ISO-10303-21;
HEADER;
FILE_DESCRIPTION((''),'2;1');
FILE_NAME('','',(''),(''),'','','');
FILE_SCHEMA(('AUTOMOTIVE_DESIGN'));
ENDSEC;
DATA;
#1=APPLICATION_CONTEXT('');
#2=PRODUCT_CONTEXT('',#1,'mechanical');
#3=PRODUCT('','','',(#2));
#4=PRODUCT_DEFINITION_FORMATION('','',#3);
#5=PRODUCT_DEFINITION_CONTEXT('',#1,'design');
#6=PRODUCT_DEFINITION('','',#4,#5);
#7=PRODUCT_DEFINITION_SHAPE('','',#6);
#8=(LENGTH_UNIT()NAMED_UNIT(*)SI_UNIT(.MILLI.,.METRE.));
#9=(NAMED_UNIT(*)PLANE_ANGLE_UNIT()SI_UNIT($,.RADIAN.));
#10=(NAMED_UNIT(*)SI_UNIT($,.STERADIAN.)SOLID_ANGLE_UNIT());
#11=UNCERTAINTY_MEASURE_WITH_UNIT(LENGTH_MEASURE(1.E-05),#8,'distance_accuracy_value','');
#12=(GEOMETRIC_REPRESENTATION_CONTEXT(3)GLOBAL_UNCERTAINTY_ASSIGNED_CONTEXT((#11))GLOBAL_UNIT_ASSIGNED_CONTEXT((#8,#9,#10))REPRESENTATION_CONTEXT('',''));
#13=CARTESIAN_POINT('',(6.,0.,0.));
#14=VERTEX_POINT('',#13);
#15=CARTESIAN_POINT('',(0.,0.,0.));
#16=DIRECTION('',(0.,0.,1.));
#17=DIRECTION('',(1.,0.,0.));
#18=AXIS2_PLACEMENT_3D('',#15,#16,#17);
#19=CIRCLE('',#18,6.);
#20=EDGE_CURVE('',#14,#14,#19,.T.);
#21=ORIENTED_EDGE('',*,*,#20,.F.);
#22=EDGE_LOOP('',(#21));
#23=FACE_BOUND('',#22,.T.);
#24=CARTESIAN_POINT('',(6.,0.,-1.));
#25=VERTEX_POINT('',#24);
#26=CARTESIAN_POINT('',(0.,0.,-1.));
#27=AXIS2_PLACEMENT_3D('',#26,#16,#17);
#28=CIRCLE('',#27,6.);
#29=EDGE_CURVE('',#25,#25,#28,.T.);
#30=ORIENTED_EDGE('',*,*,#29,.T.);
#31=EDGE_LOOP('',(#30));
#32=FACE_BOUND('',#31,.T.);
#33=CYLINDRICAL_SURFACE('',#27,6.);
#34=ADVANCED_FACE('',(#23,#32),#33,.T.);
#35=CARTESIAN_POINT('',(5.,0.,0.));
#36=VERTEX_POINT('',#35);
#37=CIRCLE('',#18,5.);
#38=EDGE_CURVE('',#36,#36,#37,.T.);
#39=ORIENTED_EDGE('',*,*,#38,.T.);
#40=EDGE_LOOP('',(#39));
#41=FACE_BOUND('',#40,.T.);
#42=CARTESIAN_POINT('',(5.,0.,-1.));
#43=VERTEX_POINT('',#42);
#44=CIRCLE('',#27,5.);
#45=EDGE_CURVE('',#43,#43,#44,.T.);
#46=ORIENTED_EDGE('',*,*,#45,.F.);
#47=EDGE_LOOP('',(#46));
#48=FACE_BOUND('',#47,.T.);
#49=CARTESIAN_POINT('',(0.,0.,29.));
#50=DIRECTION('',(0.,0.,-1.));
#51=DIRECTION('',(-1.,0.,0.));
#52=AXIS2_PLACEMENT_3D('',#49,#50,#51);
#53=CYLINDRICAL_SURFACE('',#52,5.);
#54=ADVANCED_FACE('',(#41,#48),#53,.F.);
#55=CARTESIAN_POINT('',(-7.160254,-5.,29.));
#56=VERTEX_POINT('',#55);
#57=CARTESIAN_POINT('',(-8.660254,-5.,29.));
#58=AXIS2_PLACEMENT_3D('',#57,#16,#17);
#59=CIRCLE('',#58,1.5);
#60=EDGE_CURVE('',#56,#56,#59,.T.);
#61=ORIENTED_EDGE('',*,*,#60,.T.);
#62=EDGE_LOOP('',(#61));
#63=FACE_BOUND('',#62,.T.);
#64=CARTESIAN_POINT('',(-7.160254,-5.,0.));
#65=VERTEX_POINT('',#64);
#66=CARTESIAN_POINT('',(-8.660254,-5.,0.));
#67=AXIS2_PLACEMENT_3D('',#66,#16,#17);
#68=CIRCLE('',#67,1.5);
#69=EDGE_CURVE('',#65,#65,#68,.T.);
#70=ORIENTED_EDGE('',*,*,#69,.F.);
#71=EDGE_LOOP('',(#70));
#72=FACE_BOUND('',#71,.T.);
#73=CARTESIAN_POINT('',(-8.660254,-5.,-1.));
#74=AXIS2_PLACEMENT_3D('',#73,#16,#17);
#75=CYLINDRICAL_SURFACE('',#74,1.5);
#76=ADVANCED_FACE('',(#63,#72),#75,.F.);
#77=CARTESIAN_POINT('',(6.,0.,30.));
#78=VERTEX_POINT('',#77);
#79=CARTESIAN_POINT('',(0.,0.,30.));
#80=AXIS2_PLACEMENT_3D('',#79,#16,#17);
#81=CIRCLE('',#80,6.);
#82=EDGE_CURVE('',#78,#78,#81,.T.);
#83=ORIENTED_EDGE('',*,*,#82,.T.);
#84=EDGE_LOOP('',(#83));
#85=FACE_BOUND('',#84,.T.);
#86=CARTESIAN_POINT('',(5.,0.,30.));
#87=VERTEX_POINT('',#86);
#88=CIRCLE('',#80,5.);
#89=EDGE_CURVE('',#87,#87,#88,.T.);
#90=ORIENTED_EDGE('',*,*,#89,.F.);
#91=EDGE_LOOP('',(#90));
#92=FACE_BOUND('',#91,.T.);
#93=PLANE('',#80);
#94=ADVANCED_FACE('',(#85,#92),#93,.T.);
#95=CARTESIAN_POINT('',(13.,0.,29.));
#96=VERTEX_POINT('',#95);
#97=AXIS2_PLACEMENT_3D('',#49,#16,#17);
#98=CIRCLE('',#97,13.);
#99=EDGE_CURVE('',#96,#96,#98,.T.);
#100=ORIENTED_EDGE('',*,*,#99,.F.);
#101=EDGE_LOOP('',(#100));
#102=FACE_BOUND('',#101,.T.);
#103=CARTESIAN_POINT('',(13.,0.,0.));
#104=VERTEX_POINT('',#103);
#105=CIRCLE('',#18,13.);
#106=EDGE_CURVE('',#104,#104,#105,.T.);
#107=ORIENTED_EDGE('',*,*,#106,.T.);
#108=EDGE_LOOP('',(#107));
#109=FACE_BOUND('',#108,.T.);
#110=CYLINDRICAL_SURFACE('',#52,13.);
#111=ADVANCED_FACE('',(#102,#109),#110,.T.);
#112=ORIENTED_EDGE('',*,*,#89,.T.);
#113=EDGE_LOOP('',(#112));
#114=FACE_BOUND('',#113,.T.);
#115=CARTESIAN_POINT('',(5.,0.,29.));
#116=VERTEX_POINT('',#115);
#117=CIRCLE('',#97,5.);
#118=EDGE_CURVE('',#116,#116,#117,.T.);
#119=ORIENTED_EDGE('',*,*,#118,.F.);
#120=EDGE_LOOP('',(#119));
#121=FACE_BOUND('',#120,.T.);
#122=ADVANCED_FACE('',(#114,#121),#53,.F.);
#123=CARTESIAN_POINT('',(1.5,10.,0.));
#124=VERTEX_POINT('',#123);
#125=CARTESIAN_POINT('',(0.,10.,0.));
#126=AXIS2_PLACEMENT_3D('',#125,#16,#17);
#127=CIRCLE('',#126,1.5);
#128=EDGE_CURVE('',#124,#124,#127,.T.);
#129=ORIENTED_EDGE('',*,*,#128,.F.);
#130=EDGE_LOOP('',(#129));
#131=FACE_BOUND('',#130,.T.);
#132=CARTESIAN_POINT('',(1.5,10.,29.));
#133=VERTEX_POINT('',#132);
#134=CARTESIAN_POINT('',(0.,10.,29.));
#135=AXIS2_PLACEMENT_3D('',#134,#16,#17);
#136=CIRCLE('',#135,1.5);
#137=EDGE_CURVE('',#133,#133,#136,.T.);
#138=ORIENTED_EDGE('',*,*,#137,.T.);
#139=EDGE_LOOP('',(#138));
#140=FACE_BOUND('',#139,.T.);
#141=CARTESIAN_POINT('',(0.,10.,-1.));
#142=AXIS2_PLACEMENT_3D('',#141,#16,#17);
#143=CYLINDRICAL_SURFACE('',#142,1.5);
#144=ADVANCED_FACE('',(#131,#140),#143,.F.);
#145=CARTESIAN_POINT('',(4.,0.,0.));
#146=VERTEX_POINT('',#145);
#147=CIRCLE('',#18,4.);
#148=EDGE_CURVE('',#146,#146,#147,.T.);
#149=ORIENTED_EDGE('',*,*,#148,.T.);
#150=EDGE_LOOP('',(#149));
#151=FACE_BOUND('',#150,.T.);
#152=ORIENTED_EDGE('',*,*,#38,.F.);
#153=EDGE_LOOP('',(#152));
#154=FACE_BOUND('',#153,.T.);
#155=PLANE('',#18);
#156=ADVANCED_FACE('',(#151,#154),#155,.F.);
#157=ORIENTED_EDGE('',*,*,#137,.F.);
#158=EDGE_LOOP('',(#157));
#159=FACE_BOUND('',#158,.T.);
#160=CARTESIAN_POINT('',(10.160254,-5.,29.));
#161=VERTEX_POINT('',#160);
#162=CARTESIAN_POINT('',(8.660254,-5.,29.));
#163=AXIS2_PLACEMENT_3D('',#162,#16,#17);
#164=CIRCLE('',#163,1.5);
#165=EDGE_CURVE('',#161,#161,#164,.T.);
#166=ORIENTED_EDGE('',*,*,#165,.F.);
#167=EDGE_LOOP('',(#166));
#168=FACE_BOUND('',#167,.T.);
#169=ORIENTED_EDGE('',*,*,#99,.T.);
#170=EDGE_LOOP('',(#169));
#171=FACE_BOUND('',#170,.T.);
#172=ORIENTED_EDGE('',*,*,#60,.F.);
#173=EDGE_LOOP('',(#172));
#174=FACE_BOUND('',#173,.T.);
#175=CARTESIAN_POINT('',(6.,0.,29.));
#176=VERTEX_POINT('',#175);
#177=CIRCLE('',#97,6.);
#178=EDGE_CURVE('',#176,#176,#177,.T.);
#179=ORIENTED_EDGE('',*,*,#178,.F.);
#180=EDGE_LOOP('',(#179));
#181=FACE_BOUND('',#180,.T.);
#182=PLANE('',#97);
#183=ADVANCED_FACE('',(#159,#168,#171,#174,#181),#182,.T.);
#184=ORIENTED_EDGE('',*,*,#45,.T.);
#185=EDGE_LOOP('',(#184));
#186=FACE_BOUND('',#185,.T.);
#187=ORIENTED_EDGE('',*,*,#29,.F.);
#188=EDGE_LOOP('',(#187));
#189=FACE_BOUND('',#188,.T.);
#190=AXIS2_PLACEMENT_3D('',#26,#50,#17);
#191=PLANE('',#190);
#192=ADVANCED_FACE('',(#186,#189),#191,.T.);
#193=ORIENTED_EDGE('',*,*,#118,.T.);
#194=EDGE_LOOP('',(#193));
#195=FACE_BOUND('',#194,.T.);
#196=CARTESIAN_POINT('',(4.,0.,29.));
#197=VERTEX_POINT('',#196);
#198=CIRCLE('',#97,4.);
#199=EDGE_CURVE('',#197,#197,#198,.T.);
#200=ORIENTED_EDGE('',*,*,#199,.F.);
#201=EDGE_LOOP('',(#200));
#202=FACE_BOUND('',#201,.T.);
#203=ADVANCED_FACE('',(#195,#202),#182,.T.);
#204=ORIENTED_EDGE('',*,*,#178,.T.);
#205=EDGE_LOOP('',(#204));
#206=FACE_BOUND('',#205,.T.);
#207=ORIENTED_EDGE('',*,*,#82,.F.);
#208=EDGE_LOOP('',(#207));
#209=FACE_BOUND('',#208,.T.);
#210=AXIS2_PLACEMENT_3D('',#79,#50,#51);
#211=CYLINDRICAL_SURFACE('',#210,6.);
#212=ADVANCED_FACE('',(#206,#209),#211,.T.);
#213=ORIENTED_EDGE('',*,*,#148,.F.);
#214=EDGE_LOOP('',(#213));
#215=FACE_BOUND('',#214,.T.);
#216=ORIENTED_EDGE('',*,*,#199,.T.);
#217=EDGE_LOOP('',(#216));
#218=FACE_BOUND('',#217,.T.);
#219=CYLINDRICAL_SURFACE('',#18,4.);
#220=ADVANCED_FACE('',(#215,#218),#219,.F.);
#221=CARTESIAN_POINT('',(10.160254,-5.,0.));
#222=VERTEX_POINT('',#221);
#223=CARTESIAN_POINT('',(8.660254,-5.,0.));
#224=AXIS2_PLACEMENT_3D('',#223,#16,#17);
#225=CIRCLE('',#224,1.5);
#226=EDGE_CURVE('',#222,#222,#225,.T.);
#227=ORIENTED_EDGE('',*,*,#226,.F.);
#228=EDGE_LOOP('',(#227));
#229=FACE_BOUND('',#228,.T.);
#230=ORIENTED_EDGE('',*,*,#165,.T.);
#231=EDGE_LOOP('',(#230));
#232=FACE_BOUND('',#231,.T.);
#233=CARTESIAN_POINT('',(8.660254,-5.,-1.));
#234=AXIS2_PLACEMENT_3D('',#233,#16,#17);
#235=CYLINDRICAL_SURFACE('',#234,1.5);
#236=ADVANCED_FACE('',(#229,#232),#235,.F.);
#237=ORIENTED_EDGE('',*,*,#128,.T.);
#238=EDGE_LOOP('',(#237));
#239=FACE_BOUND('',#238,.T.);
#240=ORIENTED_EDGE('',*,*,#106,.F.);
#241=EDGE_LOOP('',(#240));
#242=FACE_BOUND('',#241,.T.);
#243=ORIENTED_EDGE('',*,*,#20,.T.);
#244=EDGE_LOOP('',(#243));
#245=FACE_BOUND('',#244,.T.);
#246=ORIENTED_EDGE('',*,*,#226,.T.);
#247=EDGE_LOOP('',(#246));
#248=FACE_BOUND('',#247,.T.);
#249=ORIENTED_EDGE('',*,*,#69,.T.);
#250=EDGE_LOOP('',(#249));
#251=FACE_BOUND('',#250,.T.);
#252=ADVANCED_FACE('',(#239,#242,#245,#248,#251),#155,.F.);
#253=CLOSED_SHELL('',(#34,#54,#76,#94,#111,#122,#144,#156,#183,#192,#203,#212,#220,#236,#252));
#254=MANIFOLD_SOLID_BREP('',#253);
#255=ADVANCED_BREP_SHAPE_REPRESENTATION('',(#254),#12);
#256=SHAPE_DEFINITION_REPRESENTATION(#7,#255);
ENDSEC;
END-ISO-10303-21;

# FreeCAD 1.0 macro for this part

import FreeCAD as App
import Part
import Sketcher

doc = App.newDocument("Part")
body = doc.addObject("PartDesign::Body", "Body")

# Sketch on XY plane
sketch1 = body.newObject("Sketcher::SketchObject", "Sketch")
sketch1.AttachmentSupport = (doc.getObject("XY_Plane"), [""])
sketch1.MapMode = "FlatFace"
sketch1.addGeometry([
    Part.Circle(App.Vector(0, 0, 0), App.Vector(0, 0, 1), 13),
    Part.Circle(App.Vector(0, 0, 0), App.Vector(0, 0, 1), 5),
], False)
sketch1.addConstraint([
    Sketcher.Constraint("Coincident", 0, 3, -1, 1),
    Sketcher.Constraint("Coincident", 1, 3, -1, 1),
    Sketcher.Constraint("Diameter", 0, 26.0),
    Sketcher.Constraint("Diameter", 1, 10.0),
])
pad1 = body.newObject("PartDesign::Pad", "Pad")
pad1.Profile = sketch1
pad1.Length = 29

# Sketch on XY plane
sketch2 = body.newObject("Sketcher::SketchObject", "Sketch001")
sketch2.AttachmentSupport = (doc.getObject("XY_Plane"), [""])
sketch2.MapMode = "FlatFace"
sketch2.AttachmentOffset = App.Placement(App.Vector(0, 0, 29), App.Rotation())
sketch2.addGeometry([
    Part.Circle(App.Vector(0, 0, 0), App.Vector(0, 0, 1), 6),
    Part.Circle(App.Vector(0, 0, 0), App.Vector(0, 0, 1), 5),
], False)
sketch2.addConstraint([
    Sketcher.Constraint("Coincident", 0, 3, -1, 1),
    Sketcher.Constraint("Coincident", 1, 3, -1, 1),
    Sketcher.Constraint("Diameter", 0, 12.0),
    Sketcher.Constraint("Diameter", 1, 10.0),
])
pad2 = body.newObject("PartDesign::Pad", "Pad001")
pad2.Profile = sketch2
pad2.Length = 1
doc.recompute()

datumplane = body.newObject("PartDesign::Plane", "DatumPlane")
datumplane.AttachmentSupport = (doc.getObject("XY_Plane"), [""])
datumplane.MapMode = "FlatFace"
datumplane.AttachmentOffset = App.Placement(App.Vector(0, 0, 14.5), App.Rotation())
mirrored = body.newObject("PartDesign::Mirrored", "Mirrored")
mirrored.Originals = [pad2]
mirrored.MirrorPlane = (datumplane, [""])
body.Tip = mirrored

# Sketch on XY plane
sketch3 = body.newObject("Sketcher::SketchObject", "Sketch002")
sketch3.AttachmentSupport = (doc.getObject("XY_Plane"), [""])
sketch3.MapMode = "FlatFace"
sketch3.AttachmentOffset = App.Placement(App.Vector(0, 0, 29), App.Rotation())
sketch3.addGeometry([
    Part.Circle(App.Vector(0, 10, 0), App.Vector(0, 0, 1), 1.5),
    Part.Circle(App.Vector(8.660254, -5, 0), App.Vector(0, 0, 1), 1.5),
    Part.Circle(App.Vector(-8.660254, -5, 0), App.Vector(0, 0, 1), 1.5),
], False)
sketch3.addConstraint([
    Sketcher.Constraint("Equal", 0, 1),
    Sketcher.Constraint("Equal", 1, 2),
    Sketcher.Constraint("Symmetric", 1, 3, 2, 3, -2),
    Sketcher.Constraint("PointOnObject", 0, 3, -2),
    Sketcher.Constraint("Diameter", 0, 3.0),
    Sketcher.Constraint("DistanceY", -1, 1, 0, 3, 10.0),
    Sketcher.Constraint("DistanceY", 1, 3, -1, 1, 5.0),
    Sketcher.Constraint("DistanceX", 2, 3, 1, 3, 17.320508),
])
pocket1 = body.newObject("PartDesign::Pocket", "Pocket")
pocket1.Profile = sketch3
pocket1.Type = "ThroughAll"

# Sketch on XY plane
sketch4 = body.newObject("Sketcher::SketchObject", "Sketch003")
sketch4.AttachmentSupport = (doc.getObject("XY_Plane"), [""])
sketch4.MapMode = "FlatFace"
sketch4.AttachmentOffset = App.Placement(App.Vector(0, 0, 29), App.Rotation())
sketch4.addGeometry([
    Part.Circle(App.Vector(0, 0, 0), App.Vector(0, 0, 1), 5),
    Part.Circle(App.Vector(0, 0, 0), App.Vector(0, 0, 1), 4),
], False)
sketch4.addConstraint([
    Sketcher.Constraint("Coincident", 0, 3, -1, 1),
    Sketcher.Constraint("Coincident", 1, 3, -1, 1),
    Sketcher.Constraint("Diameter", 0, 10.0),
    Sketcher.Constraint("Diameter", 1, 8.0),
])
pad3 = body.newObject("PartDesign::Pad", "Pad002")
pad3.Profile = sketch4
pad3.Length = 29
pad3.Reversed = True

doc.recompute()
